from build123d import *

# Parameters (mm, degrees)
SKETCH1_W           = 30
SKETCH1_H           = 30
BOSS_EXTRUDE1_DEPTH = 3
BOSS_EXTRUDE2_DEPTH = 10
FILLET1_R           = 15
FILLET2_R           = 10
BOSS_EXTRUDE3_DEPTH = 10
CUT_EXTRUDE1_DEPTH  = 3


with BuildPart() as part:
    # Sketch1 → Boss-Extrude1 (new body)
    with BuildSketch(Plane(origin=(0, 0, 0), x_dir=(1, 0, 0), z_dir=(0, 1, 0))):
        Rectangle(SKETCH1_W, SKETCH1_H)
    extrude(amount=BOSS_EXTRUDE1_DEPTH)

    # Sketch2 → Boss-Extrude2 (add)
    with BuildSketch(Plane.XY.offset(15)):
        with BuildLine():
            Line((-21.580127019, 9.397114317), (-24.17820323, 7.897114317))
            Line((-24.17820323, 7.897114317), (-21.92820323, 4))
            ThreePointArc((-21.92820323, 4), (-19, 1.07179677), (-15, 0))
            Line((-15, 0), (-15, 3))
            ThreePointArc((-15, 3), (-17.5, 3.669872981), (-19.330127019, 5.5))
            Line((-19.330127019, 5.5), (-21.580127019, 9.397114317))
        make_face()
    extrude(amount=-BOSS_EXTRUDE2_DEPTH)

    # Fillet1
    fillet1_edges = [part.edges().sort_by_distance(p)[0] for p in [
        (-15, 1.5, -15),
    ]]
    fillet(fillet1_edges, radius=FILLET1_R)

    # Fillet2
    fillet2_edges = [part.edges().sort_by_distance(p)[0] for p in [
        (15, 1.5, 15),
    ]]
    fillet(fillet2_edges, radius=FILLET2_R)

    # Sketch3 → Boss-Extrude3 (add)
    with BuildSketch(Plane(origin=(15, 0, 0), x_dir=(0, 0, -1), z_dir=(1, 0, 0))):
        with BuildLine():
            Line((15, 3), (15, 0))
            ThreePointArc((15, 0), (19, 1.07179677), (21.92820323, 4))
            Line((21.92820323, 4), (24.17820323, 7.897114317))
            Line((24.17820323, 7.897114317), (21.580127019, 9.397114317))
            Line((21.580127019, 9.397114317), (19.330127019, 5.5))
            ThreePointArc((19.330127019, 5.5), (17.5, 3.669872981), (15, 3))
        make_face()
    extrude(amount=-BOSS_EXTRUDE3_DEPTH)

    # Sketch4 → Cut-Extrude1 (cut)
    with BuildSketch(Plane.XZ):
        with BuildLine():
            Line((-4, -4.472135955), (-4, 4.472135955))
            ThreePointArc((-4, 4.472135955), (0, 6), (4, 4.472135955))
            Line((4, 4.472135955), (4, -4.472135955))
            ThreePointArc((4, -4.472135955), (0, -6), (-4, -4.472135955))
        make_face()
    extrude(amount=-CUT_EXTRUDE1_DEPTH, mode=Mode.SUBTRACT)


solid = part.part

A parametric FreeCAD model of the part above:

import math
import FreeCAD as App
import Part
import Sketcher
Q = App.Units.Quantity


def edges_at(feature, points):
    """Names of the edges that pass closest to the given points."""
    edges = feature.Shape.Edges
    near = lambda p: min(range(len(edges)), key=lambda i: edges[i].distToShape(Part.Vertex(*p))[0])
    return sorted({f"Edge{near(p) + 1}" for p in points})


def add_polygon(sketch, points):
    """Adds a closed chain of lines whose ends are joined by coincident constraints."""
    first, n = sketch.GeometryCount, len(points)
    for a, b in zip(points, points[1:] + points[:1]):
        sketch.addGeometry(Part.LineSegment(App.Vector(*a, 0), App.Vector(*b, 0)), False)
    for i in range(n):
        sketch.addConstraint(Sketcher.Constraint("Coincident", first + i, 2, first + (i + 1) % n, 1))

doc = App.newDocument("Part")
body = doc.addObject("PartDesign::Body", "Body")

sketch1 = body.newObject("Sketcher::SketchObject", "Sketch")
sketch1.AttachmentSupport = (doc.getObject("XZ_Plane"), [""])
sketch1.MapMode = "FlatFace"
add_polygon(sketch1, [(-15, -15), (-15, 15), (15, 15), (15, -15)])
sketch1.addConstraint([
    Sketcher.Constraint("Vertical", 0),
    Sketcher.Constraint("Horizontal", 1),
    Sketcher.Constraint("Vertical", 2),
    Sketcher.Constraint("Horizontal", 3),
    Sketcher.Constraint("Symmetric", 0, 2, 2, 2, -1, 1),
    Sketcher.Constraint("Equal", 3, 0),
    Sketcher.Constraint("DistanceX", 1, 1, 1, 2, 30.0),
])
pad1 = body.newObject("PartDesign::Pad", "Pad")
pad1.Profile = sketch1
pad1.Length = 3
pad1.Reversed = True

sketch2 = body.newObject("Sketcher::SketchObject", "Sketch001")
sketch2.AttachmentSupport = (doc.getObject("XY_Plane"), [""])
sketch2.MapMode = "FlatFace"
sketch2.AttachmentOffset = App.Placement(App.Vector(0, 0, 15), App.Rotation())
sketch2.addGeometry([
    Part.LineSegment(App.Vector(-21.580127, 9.397114, 0), App.Vector(-24.178203, 7.897114, 0)),
    Part.LineSegment(App.Vector(-24.178203, 7.897114, 0), App.Vector(-21.928203, 4, 0)),
    Part.ArcOfCircle(Part.Circle(App.Vector(-15, 8, 0), App.Vector(0, 0, 1), 8), math.radians(-150), math.radians(-90)),
    Part.LineSegment(App.Vector(-15, 0, 0), App.Vector(-15, 3, 0)),
    Part.ArcOfCircle(Part.Circle(App.Vector(-15, 8, 0), App.Vector(0, 0, 1), 5), math.radians(-150), math.radians(-90)),
    Part.LineSegment(App.Vector(-19.330127, 5.5, 0), App.Vector(-21.580127, 9.397114, 0)),
], False)
sketch2.addConstraint([
    Sketcher.Constraint("Coincident", 0, 2, 1, 1),
    Sketcher.Constraint("Tangent", 1, 2, 2, 1),
    Sketcher.Constraint("Coincident", 2, 2, 3, 1),
    Sketcher.Constraint("Coincident", 3, 2, 4, 2),
    Sketcher.Constraint("Tangent", 4, 1, 5, 1),
    Sketcher.Constraint("Coincident", 5, 2, 0, 1),
    Sketcher.Constraint("Vertical", 3),
    Sketcher.Constraint("Coincident", 4, 3, 2, 3),
    Sketcher.Constraint("PointOnObject", 2, 2, -1),
    Sketcher.Constraint("Perpendicular", 0, 1),
    Sketcher.Constraint("Parallel", 1, 5),
    Sketcher.Constraint("Vertical", 4, 3, 2, 2),
    Sketcher.Constraint("Radius", 2, 8.0),
    Sketcher.Constraint("Radius", 4, 5.0),
    Sketcher.Constraint("Angle", 0, Q("-150 deg")),
    Sketcher.Constraint("DistanceX", 2, 3, -1, 1, 15.0),
    Sketcher.Constraint("Distance", 1, 4.5),
])
pad2 = body.newObject("PartDesign::Pad", "Pad001")
pad2.Profile = sketch2
pad2.Length = 10
pad2.Reversed = True
doc.recompute()

fillet = body.newObject("PartDesign::Fillet", "Fillet")
fillet.Base = (pad2, edges_at(pad2, [(-15, 1.5, -15)]))
fillet.Radius = 15
doc.recompute()

fillet2 = body.newObject("PartDesign::Fillet", "Fillet001")
fillet2.Base = (fillet, edges_at(fillet, [(15, 1.5, 15)]))
fillet2.Radius = 10

sketch3 = body.newObject("Sketcher::SketchObject", "Sketch002")
sketch3.AttachmentSupport = (doc.getObject("YZ_Plane"), [""])
sketch3.MapMode = "FlatFace"
sketch3.AttachmentOffset = App.Placement(App.Vector(0, 0, 15), App.Rotation())
sketch3.addGeometry([
    Part.LineSegment(App.Vector(3, -15, 0), App.Vector(0, -15, 0)),
    Part.ArcOfCircle(Part.Circle(App.Vector(8, -15, 0), App.Vector(0, 0, 1), 8), math.radians(-180), math.radians(-120)),
    Part.LineSegment(App.Vector(4, -21.928203, 0), App.Vector(7.897114, -24.178203, 0)),
    Part.LineSegment(App.Vector(7.897114, -24.178203, 0), App.Vector(9.397114, -21.580127, 0)),
    Part.LineSegment(App.Vector(9.397114, -21.580127, 0), App.Vector(5.5, -19.330127, 0)),
    Part.ArcOfCircle(Part.Circle(App.Vector(8, -15, 0), App.Vector(0, 0, 1), 5), math.radians(180), math.radians(240)),
], False)
sketch3.addConstraint([
    Sketcher.Constraint("Coincident", 0, 2, 1, 1),
    Sketcher.Constraint("Tangent", 1, 2, 2, 1),
    Sketcher.Constraint("Coincident", 2, 2, 3, 1),
    Sketcher.Constraint("Coincident", 3, 2, 4, 1),
    Sketcher.Constraint("Tangent", 4, 2, 5, 2),
    Sketcher.Constraint("Coincident", 5, 1, 0, 1),
    Sketcher.Constraint("Horizontal", 0),
    Sketcher.Constraint("Coincident", 5, 3, 1, 3),
    Sketcher.Constraint("PointOnObject", 0, 2, -2),
    Sketcher.Constraint("Perpendicular", 2, 3),
    Sketcher.Constraint("Perpendicular", 3, 4),
    Sketcher.Constraint("Horizontal", 5, 3, 0, 2),
    Sketcher.Constraint("Radius", 1, 8.0),
    Sketcher.Constraint("Radius", 5, 5.0),
    Sketcher.Constraint("Angle", 2, Q("-30 deg")),
    Sketcher.Constraint("DistanceY", 1, 3, -1, 1, 15.0),
    Sketcher.Constraint("Distance", 2, 4.5),
])
pad3 = body.newObject("PartDesign::Pad", "Pad002")
pad3.Profile = sketch3
pad3.Length = 10
pad3.Reversed = True

sketch4 = body.newObject("Sketcher::SketchObject", "Sketch003")
sketch4.AttachmentSupport = (doc.getObject("XZ_Plane"), [""])
sketch4.MapMode = "FlatFace"
sketch4.addGeometry([
    Part.LineSegment(App.Vector(-4, 4.472136, 0), App.Vector(-4, -4.472136, 0)),
    Part.ArcOfCircle(Part.Circle(App.Vector(0, 0, 0), App.Vector(0, 0, 1), 6), math.radians(-131.810315), math.radians(-48.189685)),
    Part.LineSegment(App.Vector(4, -4.472136, 0), App.Vector(4, 4.472136, 0)),
    Part.ArcOfCircle(Part.Circle(App.Vector(0, 0, 0), App.Vector(0, 0, 1), 6), math.radians(48.189685), math.radians(131.810315)),
], False)
sketch4.addConstraint([
    Sketcher.Constraint("Coincident", 0, 2, 1, 1),
    Sketcher.Constraint("Coincident", 1, 2, 2, 1),
    Sketcher.Constraint("Coincident", 2, 2, 3, 1),
    Sketcher.Constraint("Coincident", 3, 2, 0, 1),
    Sketcher.Constraint("Vertical", 0),
    Sketcher.Constraint("Vertical", 2),
    Sketcher.Constraint("Coincident", 1, 3, -1, 1),
    Sketcher.Constraint("Coincident", 3, 3, -1, 1),
    Sketcher.Constraint("Equal", 1, 3),
    Sketcher.Constraint("Horizontal", 0, 2, 1, 2),
    Sketcher.Constraint("Radius", 1, 6.0),
    Sketcher.Constraint("DistanceX", 0, 2, -1, 1, 4.0),
])
pocket1 = body.newObject("PartDesign::Pocket", "Pocket")
pocket1.Profile = sketch4
pocket1.Length = 3

doc.recompute()
